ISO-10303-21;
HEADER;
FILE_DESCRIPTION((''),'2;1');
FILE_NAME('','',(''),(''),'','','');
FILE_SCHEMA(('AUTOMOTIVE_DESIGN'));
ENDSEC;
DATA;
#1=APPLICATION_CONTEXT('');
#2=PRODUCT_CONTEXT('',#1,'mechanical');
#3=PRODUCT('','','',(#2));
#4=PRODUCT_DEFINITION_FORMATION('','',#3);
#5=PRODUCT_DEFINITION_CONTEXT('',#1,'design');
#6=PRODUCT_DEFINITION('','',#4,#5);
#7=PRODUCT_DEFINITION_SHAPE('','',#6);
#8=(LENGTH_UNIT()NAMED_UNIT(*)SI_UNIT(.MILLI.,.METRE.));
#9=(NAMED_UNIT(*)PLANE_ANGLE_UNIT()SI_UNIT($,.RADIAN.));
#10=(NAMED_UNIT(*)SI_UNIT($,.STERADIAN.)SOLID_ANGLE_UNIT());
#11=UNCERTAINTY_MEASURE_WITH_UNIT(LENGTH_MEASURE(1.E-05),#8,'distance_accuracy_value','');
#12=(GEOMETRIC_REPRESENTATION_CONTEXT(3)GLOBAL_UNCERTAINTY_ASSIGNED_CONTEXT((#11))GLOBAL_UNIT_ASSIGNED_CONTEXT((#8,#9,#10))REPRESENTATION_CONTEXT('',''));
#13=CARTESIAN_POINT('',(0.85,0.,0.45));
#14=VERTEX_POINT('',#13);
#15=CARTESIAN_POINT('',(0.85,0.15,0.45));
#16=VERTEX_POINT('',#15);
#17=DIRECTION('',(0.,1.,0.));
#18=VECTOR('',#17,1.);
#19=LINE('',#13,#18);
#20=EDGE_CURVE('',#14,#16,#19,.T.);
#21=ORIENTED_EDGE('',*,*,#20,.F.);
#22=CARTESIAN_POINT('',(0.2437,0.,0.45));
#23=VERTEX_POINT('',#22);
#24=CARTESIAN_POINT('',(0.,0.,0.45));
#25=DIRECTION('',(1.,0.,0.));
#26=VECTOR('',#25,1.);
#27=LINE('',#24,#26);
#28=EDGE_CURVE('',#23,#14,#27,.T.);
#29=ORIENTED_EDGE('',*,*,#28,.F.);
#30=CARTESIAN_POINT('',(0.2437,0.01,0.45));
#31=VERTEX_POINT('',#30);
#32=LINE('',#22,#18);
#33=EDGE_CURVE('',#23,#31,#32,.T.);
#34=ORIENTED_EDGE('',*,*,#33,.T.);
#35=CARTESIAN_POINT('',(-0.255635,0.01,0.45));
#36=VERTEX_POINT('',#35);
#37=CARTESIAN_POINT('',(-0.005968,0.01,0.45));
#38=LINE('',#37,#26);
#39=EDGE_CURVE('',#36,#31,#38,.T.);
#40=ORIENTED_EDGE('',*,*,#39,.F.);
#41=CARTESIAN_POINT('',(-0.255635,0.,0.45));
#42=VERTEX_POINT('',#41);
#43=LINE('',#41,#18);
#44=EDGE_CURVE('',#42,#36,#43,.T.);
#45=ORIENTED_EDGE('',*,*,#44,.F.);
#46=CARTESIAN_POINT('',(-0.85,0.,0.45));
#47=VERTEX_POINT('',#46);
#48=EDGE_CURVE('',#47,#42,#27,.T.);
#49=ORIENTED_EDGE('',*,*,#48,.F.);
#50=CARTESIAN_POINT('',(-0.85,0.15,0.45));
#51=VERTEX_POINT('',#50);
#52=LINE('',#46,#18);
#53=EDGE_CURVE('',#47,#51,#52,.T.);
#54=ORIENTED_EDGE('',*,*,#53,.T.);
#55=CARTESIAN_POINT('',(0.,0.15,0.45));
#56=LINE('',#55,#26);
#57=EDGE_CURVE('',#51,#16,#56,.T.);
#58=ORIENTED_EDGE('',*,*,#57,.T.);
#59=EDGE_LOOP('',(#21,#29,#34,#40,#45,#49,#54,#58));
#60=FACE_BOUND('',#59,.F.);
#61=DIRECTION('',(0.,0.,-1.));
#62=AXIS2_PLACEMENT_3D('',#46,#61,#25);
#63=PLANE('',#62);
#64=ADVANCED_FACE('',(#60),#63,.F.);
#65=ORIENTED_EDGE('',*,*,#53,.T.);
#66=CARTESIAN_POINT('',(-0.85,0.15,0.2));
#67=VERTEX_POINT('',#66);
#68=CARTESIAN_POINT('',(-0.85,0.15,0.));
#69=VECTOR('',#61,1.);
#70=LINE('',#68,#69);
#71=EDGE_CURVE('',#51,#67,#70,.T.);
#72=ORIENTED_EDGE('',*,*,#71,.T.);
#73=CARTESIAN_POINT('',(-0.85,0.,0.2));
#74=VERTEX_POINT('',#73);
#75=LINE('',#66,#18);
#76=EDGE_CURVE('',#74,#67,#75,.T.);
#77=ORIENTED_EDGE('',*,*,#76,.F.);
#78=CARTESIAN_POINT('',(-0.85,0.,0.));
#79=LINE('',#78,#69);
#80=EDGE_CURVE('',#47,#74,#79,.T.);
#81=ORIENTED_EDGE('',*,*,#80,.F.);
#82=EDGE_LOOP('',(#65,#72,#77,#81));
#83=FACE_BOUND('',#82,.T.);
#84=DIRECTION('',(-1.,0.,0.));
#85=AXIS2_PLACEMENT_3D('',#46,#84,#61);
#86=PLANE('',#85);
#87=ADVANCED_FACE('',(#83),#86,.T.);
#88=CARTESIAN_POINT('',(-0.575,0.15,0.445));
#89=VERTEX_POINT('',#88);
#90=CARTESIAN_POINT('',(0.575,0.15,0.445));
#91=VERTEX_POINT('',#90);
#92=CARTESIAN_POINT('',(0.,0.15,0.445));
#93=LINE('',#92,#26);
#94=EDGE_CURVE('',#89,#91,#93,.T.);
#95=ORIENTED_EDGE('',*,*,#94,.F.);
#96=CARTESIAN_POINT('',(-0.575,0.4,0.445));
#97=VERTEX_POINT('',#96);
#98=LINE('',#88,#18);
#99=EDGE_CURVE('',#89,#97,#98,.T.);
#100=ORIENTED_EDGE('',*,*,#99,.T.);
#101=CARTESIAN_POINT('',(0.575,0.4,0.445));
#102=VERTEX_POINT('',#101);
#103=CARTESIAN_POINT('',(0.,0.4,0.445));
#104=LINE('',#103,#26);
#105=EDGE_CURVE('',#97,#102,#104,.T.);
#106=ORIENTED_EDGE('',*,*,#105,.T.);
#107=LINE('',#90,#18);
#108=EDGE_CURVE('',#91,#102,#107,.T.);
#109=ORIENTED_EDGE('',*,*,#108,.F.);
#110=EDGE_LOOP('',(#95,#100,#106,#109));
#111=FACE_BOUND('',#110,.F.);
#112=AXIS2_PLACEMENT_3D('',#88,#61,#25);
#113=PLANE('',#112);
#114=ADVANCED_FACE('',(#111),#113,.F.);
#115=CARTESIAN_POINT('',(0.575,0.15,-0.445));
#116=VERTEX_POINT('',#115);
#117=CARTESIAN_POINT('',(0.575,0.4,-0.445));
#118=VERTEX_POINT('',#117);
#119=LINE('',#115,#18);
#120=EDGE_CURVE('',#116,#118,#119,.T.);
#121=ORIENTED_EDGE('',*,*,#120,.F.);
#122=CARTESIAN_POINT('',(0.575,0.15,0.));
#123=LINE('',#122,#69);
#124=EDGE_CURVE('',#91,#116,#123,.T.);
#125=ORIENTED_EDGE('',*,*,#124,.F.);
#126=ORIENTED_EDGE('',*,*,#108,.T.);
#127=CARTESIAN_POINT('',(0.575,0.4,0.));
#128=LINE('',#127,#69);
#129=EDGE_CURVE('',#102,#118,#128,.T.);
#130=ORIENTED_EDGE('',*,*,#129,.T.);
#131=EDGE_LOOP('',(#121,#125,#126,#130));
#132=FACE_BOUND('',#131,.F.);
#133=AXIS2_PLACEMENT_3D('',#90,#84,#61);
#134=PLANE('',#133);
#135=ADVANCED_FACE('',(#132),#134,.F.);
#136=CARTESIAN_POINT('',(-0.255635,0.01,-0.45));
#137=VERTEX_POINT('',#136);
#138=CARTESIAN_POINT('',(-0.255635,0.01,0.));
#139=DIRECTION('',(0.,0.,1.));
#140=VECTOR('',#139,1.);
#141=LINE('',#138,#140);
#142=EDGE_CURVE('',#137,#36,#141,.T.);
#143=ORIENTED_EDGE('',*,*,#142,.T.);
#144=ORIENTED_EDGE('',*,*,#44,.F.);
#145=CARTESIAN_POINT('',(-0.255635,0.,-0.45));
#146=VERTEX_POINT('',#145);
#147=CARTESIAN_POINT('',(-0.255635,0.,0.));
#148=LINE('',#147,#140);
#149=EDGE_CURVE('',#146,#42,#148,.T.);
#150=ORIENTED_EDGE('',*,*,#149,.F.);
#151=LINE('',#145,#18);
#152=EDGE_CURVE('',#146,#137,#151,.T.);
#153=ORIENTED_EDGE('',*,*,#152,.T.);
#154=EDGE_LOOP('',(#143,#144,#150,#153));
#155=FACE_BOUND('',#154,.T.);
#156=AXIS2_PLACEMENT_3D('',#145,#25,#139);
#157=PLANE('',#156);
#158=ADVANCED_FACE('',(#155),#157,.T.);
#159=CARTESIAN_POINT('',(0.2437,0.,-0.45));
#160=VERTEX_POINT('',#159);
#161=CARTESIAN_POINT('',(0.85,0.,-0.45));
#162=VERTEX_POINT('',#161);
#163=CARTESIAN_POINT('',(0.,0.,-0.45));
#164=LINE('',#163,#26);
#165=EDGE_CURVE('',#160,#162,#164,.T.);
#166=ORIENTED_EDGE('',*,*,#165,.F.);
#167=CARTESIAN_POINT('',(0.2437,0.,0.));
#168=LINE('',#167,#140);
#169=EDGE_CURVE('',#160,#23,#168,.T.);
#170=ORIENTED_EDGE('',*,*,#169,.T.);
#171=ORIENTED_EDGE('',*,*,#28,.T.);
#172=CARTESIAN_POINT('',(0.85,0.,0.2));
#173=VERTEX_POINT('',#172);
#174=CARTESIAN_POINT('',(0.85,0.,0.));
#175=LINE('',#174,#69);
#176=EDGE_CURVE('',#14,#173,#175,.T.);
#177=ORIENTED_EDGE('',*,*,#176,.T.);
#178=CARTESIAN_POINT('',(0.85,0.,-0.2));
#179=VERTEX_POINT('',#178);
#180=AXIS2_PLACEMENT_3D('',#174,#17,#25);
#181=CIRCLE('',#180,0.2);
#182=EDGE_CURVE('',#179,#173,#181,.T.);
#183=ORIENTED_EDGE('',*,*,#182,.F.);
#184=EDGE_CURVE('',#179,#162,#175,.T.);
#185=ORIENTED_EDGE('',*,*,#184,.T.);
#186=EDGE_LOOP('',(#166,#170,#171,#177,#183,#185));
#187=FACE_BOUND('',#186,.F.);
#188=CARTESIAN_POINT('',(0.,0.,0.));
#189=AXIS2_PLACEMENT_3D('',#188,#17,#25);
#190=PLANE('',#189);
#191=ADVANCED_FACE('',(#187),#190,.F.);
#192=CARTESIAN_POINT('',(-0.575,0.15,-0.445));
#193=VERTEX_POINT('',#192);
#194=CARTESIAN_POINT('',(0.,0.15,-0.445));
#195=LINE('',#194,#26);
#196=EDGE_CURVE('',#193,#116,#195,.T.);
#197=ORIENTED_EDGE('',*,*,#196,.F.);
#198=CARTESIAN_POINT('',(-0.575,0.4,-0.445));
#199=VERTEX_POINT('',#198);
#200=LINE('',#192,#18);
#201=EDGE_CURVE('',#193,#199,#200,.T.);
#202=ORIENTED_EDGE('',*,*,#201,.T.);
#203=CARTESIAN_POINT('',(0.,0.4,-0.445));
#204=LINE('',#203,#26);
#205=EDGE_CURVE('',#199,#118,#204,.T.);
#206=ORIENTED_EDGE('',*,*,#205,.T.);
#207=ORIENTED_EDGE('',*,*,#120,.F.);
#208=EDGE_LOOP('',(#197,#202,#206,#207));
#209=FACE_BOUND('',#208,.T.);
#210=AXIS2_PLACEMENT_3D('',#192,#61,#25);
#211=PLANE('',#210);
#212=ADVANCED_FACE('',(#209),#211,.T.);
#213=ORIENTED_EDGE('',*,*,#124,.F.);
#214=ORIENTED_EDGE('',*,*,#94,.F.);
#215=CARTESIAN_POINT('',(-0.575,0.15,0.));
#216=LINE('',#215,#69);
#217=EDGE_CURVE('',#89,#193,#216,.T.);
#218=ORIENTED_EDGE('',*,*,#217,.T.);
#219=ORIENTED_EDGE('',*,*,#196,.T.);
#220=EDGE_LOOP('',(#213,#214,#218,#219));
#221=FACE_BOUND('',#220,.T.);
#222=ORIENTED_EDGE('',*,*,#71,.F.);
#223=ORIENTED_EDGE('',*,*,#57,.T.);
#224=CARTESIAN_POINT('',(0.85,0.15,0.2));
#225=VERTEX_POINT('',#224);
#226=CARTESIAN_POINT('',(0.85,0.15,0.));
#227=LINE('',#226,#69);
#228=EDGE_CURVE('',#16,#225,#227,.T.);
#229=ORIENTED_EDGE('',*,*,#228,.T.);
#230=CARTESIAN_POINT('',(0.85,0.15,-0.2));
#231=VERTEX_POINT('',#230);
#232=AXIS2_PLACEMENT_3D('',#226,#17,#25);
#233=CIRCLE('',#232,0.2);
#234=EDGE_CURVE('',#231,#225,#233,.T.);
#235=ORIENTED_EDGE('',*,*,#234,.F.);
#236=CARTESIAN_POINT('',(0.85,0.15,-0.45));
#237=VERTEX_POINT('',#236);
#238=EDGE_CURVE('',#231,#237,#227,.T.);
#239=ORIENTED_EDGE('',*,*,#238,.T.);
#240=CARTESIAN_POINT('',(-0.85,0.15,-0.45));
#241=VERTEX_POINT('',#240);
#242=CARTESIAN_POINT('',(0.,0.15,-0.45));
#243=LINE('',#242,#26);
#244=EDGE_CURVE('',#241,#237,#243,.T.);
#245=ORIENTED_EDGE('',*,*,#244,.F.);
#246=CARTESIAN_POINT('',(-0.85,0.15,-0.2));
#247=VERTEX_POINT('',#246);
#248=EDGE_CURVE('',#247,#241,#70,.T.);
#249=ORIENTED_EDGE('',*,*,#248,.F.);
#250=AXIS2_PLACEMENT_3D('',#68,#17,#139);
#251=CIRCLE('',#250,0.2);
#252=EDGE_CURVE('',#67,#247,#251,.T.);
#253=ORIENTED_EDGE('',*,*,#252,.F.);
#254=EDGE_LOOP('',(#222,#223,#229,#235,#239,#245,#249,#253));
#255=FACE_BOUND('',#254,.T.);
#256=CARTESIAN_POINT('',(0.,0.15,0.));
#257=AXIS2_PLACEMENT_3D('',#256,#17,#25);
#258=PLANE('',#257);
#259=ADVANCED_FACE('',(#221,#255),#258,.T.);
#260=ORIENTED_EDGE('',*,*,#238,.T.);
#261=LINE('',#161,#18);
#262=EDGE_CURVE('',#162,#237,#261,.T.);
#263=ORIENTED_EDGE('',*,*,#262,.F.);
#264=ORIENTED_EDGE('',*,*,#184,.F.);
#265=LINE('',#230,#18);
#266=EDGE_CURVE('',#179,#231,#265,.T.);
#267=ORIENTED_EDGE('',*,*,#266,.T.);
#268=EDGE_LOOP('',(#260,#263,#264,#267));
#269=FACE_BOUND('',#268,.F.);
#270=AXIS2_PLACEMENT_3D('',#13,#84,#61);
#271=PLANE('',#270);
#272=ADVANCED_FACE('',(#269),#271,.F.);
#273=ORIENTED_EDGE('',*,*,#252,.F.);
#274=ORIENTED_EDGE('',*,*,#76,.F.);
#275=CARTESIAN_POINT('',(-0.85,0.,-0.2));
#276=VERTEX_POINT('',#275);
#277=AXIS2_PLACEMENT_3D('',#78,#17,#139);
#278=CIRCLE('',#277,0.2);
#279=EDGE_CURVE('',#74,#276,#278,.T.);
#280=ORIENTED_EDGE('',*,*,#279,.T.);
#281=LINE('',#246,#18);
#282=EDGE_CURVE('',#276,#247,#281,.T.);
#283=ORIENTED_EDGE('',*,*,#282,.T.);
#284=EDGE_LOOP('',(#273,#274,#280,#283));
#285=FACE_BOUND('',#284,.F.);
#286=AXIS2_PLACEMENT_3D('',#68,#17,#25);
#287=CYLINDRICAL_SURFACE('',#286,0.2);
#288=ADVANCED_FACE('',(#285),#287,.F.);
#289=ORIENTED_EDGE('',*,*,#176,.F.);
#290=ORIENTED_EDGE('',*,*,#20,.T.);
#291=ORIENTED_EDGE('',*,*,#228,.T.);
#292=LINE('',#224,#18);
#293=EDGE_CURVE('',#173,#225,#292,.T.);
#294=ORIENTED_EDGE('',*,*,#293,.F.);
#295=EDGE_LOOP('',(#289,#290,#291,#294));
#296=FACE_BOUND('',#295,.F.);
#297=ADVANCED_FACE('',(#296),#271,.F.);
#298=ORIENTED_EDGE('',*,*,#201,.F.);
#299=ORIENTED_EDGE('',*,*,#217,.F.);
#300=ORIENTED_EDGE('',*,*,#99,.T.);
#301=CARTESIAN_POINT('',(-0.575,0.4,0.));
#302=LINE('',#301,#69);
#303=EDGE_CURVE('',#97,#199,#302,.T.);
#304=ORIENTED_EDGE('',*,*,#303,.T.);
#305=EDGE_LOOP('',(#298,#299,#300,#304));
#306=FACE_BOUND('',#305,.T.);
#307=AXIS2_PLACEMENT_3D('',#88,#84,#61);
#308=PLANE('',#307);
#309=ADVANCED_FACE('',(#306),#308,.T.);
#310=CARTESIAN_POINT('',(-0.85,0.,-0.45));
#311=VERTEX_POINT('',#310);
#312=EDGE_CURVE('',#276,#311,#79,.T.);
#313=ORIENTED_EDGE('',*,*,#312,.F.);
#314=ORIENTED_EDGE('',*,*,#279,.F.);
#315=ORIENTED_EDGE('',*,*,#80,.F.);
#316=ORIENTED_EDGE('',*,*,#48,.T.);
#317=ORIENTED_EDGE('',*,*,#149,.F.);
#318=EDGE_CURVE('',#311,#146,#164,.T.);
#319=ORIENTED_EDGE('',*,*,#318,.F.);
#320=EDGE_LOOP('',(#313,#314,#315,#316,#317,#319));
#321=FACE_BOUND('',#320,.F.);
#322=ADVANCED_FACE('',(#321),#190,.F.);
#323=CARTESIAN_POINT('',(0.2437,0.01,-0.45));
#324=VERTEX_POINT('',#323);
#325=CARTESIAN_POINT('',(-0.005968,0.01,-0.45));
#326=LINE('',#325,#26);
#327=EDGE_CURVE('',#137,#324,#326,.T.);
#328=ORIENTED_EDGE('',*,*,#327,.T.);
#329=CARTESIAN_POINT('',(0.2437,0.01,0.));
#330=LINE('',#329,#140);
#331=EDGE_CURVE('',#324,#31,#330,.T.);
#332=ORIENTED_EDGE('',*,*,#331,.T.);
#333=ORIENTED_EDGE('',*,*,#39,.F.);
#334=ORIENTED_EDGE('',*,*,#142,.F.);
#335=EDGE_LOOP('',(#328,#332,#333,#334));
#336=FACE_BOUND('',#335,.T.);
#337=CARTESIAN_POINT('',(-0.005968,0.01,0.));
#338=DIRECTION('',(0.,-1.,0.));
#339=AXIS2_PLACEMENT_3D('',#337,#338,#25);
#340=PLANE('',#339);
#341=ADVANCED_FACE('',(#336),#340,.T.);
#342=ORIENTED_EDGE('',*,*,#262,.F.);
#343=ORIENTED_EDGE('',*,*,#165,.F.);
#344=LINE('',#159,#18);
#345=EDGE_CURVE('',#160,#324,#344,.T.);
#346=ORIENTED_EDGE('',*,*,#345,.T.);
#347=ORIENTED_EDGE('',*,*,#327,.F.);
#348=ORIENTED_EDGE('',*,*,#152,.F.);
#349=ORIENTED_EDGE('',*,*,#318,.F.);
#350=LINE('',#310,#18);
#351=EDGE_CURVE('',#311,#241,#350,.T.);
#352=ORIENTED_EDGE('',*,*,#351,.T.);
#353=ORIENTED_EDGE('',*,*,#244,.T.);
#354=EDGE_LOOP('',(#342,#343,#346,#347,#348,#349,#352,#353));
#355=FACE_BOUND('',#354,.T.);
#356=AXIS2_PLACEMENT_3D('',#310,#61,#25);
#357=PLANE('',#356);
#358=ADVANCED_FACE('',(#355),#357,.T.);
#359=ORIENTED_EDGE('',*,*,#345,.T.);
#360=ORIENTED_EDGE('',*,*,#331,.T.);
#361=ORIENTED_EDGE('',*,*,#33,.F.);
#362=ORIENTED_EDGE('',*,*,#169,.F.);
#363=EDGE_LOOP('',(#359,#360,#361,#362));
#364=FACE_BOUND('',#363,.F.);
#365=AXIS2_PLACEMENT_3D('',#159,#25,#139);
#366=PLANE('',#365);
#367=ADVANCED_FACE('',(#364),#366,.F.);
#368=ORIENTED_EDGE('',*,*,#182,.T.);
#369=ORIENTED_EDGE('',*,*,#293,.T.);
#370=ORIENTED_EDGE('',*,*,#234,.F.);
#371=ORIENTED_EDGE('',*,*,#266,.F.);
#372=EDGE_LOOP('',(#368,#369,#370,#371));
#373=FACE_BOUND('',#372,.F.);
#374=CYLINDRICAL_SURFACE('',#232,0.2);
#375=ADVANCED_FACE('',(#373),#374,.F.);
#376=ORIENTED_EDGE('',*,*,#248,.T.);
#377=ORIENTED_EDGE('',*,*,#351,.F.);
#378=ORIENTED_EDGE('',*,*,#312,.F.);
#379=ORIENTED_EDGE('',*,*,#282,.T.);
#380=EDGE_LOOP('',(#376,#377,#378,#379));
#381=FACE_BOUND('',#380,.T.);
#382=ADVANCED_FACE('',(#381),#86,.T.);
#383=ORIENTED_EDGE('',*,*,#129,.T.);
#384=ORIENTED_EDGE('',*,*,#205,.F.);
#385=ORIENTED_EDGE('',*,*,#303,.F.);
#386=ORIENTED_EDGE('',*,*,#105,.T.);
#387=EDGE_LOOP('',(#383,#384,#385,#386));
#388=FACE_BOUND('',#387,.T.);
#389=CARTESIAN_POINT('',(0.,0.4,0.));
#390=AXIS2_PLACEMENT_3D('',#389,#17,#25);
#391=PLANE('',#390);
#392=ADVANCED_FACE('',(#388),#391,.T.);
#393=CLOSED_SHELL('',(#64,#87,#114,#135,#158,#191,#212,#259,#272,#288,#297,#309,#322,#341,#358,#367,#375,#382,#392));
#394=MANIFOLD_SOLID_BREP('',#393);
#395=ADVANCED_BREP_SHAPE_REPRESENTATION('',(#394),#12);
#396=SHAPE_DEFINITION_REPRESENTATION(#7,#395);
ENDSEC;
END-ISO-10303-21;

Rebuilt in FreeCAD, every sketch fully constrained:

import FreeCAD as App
import Part
import Sketcher


def add_polygon(sketch, points):
    """Adds a closed chain of lines whose ends are joined by coincident constraints."""
    first, n = sketch.GeometryCount, len(points)
    for a, b in zip(points, points[1:] + points[:1]):
        sketch.addGeometry(Part.LineSegment(App.Vector(*a, 0), App.Vector(*b, 0)), False)
    for i in range(n):
        sketch.addConstraint(Sketcher.Constraint("Coincident", first + i, 2, first + (i + 1) % n, 1))

doc = App.newDocument("Part")
body = doc.addObject("PartDesign::Body", "Body")

# Sketch on XZ plane
sketch1 = body.newObject("Sketcher::SketchObject", "Sketch")
sketch1.AttachmentSupport = (doc.getObject("XZ_Plane"), [""])
sketch1.MapMode = "FlatFace"
add_polygon(sketch1, [(-0.8, -0.5), (-0.8, 0.5), (0.8, 0.5), (0.8, -0.5)])  # lines 0-3
sketch1.addConstraint(Sketcher.Constraint("Vertical", 0))
sketch1.addConstraint(Sketcher.Constraint("Horizontal", 1))
sketch1.addConstraint(Sketcher.Constraint("Vertical", 2))
sketch1.addConstraint(Sketcher.Constraint("Horizontal", 3))
sketch1.addConstraint(Sketcher.Constraint("Symmetric", 0, 2, 2, 2, -1, 1))
sketch1.addConstraint(Sketcher.Constraint("DistanceX", 1, 1, 1, 2, 1.7))
sketch1.addConstraint(Sketcher.Constraint("DistanceY", 0, 1, 0, 2, 0.9))
pad1 = body.newObject("PartDesign::Pad", "Pad")
pad1.Profile = sketch1
pad1.Length = 0.15
pad1.Reversed = True

# Sketch on XZ plane
sketch2 = body.newObject("Sketcher::SketchObject", "Sketch001")
sketch2.AttachmentSupport = (doc.getObject("XZ_Plane"), [""])
sketch2.MapMode = "FlatFace"
sketch2.AttachmentOffset = App.Placement(App.Vector(0, 0, -0.15), App.Rotation())
sketch2.addGeometry(Part.Circle(App.Vector(-0.85, 0, 0), App.Vector(0, 0, 1), 0.2), False)
sketch2.addGeometry(Part.Circle(App.Vector(0.85, 0, 0), App.Vector(0, 0, 1), 0.2), False)
sketch2.addConstraint(Sketcher.Constraint("Equal", 0, 1))
sketch2.addConstraint(Sketcher.Constraint("Symmetric", 0, 3, 1, 3, -1, 1))
sketch2.addConstraint(Sketcher.Constraint("PointOnObject", 0, 3, -1))
sketch2.addConstraint(Sketcher.Constraint("Diameter", 0, 0.4))
sketch2.addConstraint(Sketcher.Constraint("DistanceX", 0, 3, 1, 3, 1.7))
pocket1 = body.newObject("PartDesign::Pocket", "Pocket")
pocket1.Profile = sketch2
pocket1.Type = "ThroughAll"
pocket1.Reversed = True

# Sketch on XZ plane
sketch3 = body.newObject("Sketcher::SketchObject", "Sketch002")
sketch3.AttachmentSupport = (doc.getObject("XZ_Plane"), [""])
sketch3.MapMode = "FlatFace"
sketch3.AttachmentOffset = App.Placement(App.Vector(0, 0, -0.15), App.Rotation())
add_polygon(sketch3, [(-0.6, -0.4), (-0.6, 0.4), (0.6, 0.4), (0.6, -0.4)])  # lines 0-3
sketch3.addConstraint(Sketcher.Constraint("Vertical", 0))
sketch3.addConstraint(Sketcher.Constraint("Horizontal", 1))
sketch3.addConstraint(Sketcher.Constraint("Vertical", 2))
sketch3.addConstraint(Sketcher.Constraint("Horizontal", 3))
sketch3.addConstraint(Sketcher.Constraint("Symmetric", 0, 2, 2, 2, -1, 1))
sketch3.addConstraint(Sketcher.Constraint("DistanceX", 1, 1, 1, 2, 1.15))
sketch3.addConstraint(Sketcher.Constraint("DistanceY", 0, 1, 0, 2, 0.89))
pad2 = body.newObject("PartDesign::Pad", "Pad001")
pad2.Profile = sketch3
pad2.Length = 0.25
pad2.Reversed = True

# Sketch on XZ plane
sketch4 = body.newObject("Sketcher::SketchObject", "Sketch003")
sketch4.AttachmentSupport = (doc.getObject("XZ_Plane"), [""])
sketch4.MapMode = "FlatFace"
add_polygon(sketch4, [(-0.26, 0.45), (-0.26, -0.45), (0.24, -0.45), (0.24, 0.45)])  # lines 0-3
sketch4.addConstraint(Sketcher.Constraint("Vertical", 0))
sketch4.addConstraint(Sketcher.Constraint("Horizontal", 1))
sketch4.addConstraint(Sketcher.Constraint("Vertical", 2))
sketch4.addConstraint(Sketcher.Constraint("Horizontal", 3))
sketch4.addConstraint(Sketcher.Constraint("DistanceY", 0, 2, 0, 1, 0.9))
sketch4.addConstraint(Sketcher.Constraint("DistanceY", 0, 2, -1, 1, 0.45))
sketch4.addConstraint(Sketcher.Constraint("DistanceX", -1, 1, 1, 2, 0.2437))
sketch4.addConstraint(Sketcher.Constraint("DistanceX", 1, 1, 1, 2, 0.499335))
pocket2 = body.newObject("PartDesign::Pocket", "Pocket001")
pocket2.Profile = sketch4
pocket2.Length = 0.01

doc.recompute()
